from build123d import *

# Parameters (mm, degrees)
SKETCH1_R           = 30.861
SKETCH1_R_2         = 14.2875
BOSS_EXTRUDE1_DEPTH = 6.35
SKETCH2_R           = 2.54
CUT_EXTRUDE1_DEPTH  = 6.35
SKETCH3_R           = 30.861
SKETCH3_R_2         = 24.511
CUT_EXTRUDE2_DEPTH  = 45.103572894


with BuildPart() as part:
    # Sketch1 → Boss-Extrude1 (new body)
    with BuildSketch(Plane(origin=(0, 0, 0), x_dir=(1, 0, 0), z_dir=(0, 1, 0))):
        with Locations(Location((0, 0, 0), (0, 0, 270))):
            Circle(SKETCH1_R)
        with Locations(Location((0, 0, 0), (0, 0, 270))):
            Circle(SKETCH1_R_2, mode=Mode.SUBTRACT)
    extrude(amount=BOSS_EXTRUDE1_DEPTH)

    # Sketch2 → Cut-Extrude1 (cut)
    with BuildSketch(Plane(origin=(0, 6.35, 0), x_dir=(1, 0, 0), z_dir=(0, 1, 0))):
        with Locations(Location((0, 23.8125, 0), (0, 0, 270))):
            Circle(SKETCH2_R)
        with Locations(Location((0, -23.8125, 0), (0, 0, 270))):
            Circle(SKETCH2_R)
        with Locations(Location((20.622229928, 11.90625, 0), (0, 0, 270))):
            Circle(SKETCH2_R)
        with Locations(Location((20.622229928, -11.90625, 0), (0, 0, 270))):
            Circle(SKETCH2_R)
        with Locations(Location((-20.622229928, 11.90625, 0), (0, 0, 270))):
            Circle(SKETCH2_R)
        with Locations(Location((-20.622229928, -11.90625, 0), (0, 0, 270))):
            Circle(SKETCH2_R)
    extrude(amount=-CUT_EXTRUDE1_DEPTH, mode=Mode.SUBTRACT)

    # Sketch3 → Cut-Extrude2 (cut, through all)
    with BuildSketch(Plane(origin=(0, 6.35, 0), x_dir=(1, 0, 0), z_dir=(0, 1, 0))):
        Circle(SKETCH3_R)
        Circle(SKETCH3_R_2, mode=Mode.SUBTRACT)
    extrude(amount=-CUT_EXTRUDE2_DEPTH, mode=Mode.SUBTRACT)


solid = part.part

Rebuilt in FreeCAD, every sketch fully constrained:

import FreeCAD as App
import Part
import Sketcher
from FreeCAD import Vector
Q = App.Units.Quantity

doc = App.newDocument("Part")
params = doc.addObject("Spreadsheet::Sheet", "Params")
for row, (alias, value) in enumerate([
    ("sketch1_diameter", "2.43 in"),
    ("sketch1_diameter2", "1.125 in"),
    ("pad1_length", "0.25 in"),
    ("sketch2_diameter", "0.2 in"),
    ("pocket1_length", "0.25 in"),
    ("sketch3_diameter", "2.43 in"),
    ("sketch3_diameter2", "1.93 in"),
], start=1):
    params.set(f"A{row}", alias)
    params.set(f"B{row}", "=" + value)
    params.setAlias(f"B{row}", alias)

body = doc.addObject("PartDesign::Body", "Body")

sketch1 = body.newObject("Sketcher::SketchObject", "Sketch")
sketch1.AttachmentSupport = (doc.getObject("XZ_Plane"), [""])
sketch1.MapMode = "FlatFace"
sketch1.addGeometry([
    Part.Circle(Vector(0, 0, 0), Vector(0, 0, 1), 31),
    Part.Circle(Vector(0, 0, 0), Vector(0, 0, 1), 14),
], False)
sketch1.addConstraint([
    Sketcher.Constraint("Coincident", 0, 3, -1, 1),
    Sketcher.Constraint("Coincident", 1, 3, -1, 1),
    Sketcher.Constraint("Diameter", 0, Q("2.43 in")),
    Sketcher.Constraint("Diameter", 1, Q("1.125 in")),
])
sketch1.setExpression("Constraints[2]", "Params.sketch1_diameter")
sketch1.setExpression("Constraints[3]", "Params.sketch1_diameter2")
pad1 = body.newObject("PartDesign::Pad", "Pad")
pad1.Profile = sketch1
pad1.setExpression("Length", "Params.pad1_length")
pad1.Reversed = True

sketch2 = body.newObject("Sketcher::SketchObject", "Sketch001")
sketch2.AttachmentSupport = (doc.getObject("XZ_Plane"), [""])
sketch2.MapMode = "FlatFace"
sketch2.AttachmentOffset = App.Placement(Vector(0, 0, -0.25 * 25.4), App.Rotation())
sketch2.addGeometry([
    Part.Circle(Vector(0, -23.8, 0), Vector(0, 0, 1), 2.5),
    Part.Circle(Vector(0, 23.8, 0), Vector(0, 0, 1), 2.5),
    Part.Circle(Vector(20.6, -11.9, 0), Vector(0, 0, 1), 2.5),
    Part.Circle(Vector(20.6, 11.9, 0), Vector(0, 0, 1), 2.5),
    Part.Circle(Vector(-20.6, -11.9, 0), Vector(0, 0, 1), 2.5),
    Part.Circle(Vector(-20.6, 11.9, 0), Vector(0, 0, 1), 2.5),
], False)
sketch2.addConstraint([
    Sketcher.Constraint("Equal", 0, 1),
    Sketcher.Constraint("Equal", 1, 2),
    Sketcher.Constraint("Equal", 2, 3),
    Sketcher.Constraint("Equal", 3, 4),
    Sketcher.Constraint("Equal", 4, 5),
    Sketcher.Constraint("Symmetric", 0, 3, 1, 3, -1, 1),
    Sketcher.Constraint("Symmetric", 3, 3, 4, 3, -1, 1),
    Sketcher.Constraint("Symmetric", 2, 3, 5, 3, -1, 1),
    Sketcher.Constraint("Symmetric", 2, 3, 4, 3, -2),
    Sketcher.Constraint("PointOnObject", 0, 3, -2),
    Sketcher.Constraint("Diameter", 0, Q("0.2 in")),
    Sketcher.Constraint("DistanceY", 0, 3, -1, 1, Q("0.9375 in")),
    Sketcher.Constraint("DistanceY", 2, 3, -1, 1, Q("0.46875 in")),
    Sketcher.Constraint("DistanceX", -1, 1, 2, 3, 20.62223),
])
sketch2.setExpression("Constraints[10]", "Params.sketch2_diameter")
pocket1 = body.newObject("PartDesign::Pocket", "Pocket")
pocket1.Profile = sketch2
pocket1.setExpression("Length", "Params.pocket1_length")
pocket1.Reversed = True

sketch3 = body.newObject("Sketcher::SketchObject", "Sketch002")
sketch3.AttachmentSupport = (doc.getObject("XZ_Plane"), [""])
sketch3.MapMode = "FlatFace"
sketch3.AttachmentOffset = App.Placement(Vector(0, 0, -0.25 * 25.4), App.Rotation())
sketch3.addGeometry([
    Part.Circle(Vector(0, 0, 0), Vector(0, 0, 1), 31),
    Part.Circle(Vector(0, 0, 0), Vector(0, 0, 1), 25),
], False)
sketch3.addConstraint([
    Sketcher.Constraint("Coincident", 0, 3, -1, 1),
    Sketcher.Constraint("Coincident", 1, 3, -1, 1),
    Sketcher.Constraint("Diameter", 0, Q("2.43 in")),
    Sketcher.Constraint("Diameter", 1, Q("1.93 in")),
])
sketch3.setExpression("Constraints[2]", "Params.sketch3_diameter")
sketch3.setExpression("Constraints[3]", "Params.sketch3_diameter2")
pocket2 = body.newObject("PartDesign::Pocket", "Pocket001")
pocket2.Profile = sketch3
pocket2.Type = "ThroughAll"
pocket2.Reversed = True

doc.recompute()
